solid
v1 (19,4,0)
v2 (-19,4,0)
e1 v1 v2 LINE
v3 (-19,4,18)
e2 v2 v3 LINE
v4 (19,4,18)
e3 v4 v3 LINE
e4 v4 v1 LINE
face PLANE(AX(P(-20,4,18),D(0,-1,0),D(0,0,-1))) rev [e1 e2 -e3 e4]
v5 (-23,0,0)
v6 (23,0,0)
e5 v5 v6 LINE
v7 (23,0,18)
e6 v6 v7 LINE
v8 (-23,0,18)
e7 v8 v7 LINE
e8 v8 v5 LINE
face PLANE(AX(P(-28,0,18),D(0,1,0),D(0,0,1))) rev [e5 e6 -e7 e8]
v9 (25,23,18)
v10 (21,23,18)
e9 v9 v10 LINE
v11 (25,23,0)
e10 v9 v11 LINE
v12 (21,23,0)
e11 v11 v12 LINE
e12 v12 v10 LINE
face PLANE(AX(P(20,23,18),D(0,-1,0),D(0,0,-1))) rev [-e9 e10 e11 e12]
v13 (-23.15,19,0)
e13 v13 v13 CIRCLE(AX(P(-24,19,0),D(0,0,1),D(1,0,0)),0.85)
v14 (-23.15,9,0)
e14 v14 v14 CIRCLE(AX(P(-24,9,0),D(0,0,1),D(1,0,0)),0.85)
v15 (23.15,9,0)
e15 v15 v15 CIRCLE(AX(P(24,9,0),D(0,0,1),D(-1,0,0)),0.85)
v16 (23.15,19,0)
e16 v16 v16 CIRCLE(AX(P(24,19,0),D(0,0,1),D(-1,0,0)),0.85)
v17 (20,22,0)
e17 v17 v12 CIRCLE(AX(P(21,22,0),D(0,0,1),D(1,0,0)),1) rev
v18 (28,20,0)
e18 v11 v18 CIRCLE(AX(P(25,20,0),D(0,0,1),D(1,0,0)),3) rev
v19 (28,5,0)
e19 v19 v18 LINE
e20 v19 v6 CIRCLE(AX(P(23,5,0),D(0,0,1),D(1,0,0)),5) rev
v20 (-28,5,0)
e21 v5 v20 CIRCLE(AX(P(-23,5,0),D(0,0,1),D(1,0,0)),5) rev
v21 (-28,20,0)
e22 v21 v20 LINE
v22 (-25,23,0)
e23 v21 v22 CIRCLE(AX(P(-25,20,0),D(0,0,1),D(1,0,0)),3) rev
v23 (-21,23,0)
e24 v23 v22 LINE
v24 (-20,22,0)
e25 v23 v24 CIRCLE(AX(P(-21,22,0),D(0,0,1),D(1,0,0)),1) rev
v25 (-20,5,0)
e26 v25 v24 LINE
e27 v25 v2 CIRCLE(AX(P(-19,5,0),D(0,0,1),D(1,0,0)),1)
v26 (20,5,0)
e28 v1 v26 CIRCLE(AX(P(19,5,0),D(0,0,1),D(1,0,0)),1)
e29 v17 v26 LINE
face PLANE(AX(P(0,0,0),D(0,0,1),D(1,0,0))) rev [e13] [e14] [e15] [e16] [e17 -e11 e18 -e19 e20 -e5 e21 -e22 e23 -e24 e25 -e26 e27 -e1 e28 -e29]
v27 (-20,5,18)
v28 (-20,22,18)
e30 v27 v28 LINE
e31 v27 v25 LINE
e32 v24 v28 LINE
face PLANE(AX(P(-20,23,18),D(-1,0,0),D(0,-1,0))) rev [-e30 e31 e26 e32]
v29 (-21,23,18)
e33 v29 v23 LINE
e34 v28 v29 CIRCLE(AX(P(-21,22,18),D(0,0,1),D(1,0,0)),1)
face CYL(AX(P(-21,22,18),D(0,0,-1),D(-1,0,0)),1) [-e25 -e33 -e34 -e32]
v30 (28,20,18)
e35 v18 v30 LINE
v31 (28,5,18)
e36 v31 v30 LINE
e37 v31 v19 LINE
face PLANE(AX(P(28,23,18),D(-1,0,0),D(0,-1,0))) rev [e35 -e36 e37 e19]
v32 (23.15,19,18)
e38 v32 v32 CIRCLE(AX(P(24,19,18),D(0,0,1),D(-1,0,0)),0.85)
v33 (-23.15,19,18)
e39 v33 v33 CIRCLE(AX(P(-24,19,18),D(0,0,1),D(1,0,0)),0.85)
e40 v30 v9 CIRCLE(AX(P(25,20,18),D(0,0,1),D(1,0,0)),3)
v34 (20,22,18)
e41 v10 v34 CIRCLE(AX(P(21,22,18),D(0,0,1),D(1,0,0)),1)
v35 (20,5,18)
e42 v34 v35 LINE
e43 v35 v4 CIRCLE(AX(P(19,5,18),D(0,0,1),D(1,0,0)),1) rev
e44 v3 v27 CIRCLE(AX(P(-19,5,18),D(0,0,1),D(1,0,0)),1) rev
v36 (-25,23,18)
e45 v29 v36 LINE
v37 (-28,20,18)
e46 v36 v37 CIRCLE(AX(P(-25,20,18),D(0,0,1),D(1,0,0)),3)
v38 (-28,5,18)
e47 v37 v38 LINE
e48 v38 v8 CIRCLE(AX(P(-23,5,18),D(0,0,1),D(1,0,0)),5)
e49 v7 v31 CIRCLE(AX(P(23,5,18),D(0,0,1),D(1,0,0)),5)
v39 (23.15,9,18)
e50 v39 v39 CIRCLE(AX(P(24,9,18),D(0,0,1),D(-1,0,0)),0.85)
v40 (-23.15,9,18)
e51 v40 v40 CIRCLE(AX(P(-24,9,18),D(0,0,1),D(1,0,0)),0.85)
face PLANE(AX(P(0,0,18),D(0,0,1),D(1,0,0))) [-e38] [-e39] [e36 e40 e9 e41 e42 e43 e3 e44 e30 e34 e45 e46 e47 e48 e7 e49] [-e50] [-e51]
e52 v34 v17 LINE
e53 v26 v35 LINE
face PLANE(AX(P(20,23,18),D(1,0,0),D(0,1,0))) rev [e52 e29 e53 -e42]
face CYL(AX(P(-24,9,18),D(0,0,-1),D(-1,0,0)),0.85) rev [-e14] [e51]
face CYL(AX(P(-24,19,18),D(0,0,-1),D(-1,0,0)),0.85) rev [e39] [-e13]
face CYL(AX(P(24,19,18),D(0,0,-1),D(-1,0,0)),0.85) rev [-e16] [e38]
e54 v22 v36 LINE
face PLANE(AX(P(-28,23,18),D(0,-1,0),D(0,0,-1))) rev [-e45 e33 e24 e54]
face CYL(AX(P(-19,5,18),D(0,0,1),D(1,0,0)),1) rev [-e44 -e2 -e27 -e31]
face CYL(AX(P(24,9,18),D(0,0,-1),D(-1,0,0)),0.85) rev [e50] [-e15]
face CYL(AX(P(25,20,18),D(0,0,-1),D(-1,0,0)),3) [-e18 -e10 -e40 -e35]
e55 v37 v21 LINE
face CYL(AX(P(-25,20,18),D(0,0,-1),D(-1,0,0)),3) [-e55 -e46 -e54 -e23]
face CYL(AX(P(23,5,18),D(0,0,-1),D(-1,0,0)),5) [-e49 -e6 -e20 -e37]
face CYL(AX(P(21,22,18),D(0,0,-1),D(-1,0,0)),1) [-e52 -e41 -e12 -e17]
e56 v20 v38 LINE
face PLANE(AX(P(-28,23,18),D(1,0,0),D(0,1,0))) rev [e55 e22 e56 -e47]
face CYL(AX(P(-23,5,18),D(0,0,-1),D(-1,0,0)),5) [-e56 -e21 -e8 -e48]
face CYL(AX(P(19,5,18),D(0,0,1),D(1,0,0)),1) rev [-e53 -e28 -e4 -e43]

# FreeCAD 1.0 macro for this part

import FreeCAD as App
import Part
import Sketcher
from FreeCAD import Vector
Q = App.Units.Quantity


def edges_at(feature, points):
    """Names of the edges that pass closest to the given points."""
    edges = feature.Shape.Edges
    near = lambda p: min(range(len(edges)), key=lambda i: edges[i].distToShape(Part.Vertex(*p))[0])
    return sorted({f"Edge{near(p) + 1}" for p in points})

doc = App.newDocument("Part")
body = doc.addObject("PartDesign::Body", "Body")

sketch1 = body.newObject("Sketcher::SketchObject", "Sketch")
sketch1.AttachmentSupport = (doc.getObject("XY_Plane"), [""])
sketch1.MapMode = "FlatFace"
sketch1.addGeometry([
    Part.LineSegment(Vector(28, 23, 0), Vector(20, 23, 0)),
    Part.LineSegment(Vector(20, 23, 0), Vector(20, 4, 0)),
    Part.LineSegment(Vector(20, 4, 0), Vector(-20, 4, 0)),
    Part.LineSegment(Vector(-20, 4, 0), Vector(-20, 23, 0)),
    Part.LineSegment(Vector(-20, 23, 0), Vector(-28, 23, 0)),
    Part.LineSegment(Vector(-28, 23, 0), Vector(-28, 0, 0)),
    Part.LineSegment(Vector(-28, 0, 0), Vector(28, 0, 0)),
    Part.LineSegment(Vector(28, 0, 0), Vector(28, 23, 0)),
    Part.Circle(Vector(24, 9, 0), Vector(0, 0, 1), 0.8),
    Part.Circle(Vector(-24, 9, 0), Vector(0, 0, 1), 0.8),
    Part.Circle(Vector(24, 19, 0), Vector(0, 0, 1), 0.8),
    Part.Circle(Vector(-24, 19, 0), Vector(0, 0, 1), 0.8),
], False)
sketch1.addConstraint([
    Sketcher.Constraint("Coincident", 0, 2, 1, 1),
    Sketcher.Constraint("Coincident", 1, 2, 2, 1),
    Sketcher.Constraint("Coincident", 2, 2, 3, 1),
    Sketcher.Constraint("Coincident", 3, 2, 4, 1),
    Sketcher.Constraint("Coincident", 4, 2, 5, 1),
    Sketcher.Constraint("Coincident", 5, 2, 6, 1),
    Sketcher.Constraint("Coincident", 6, 2, 7, 1),
    Sketcher.Constraint("Coincident", 7, 2, 0, 1),
    Sketcher.Constraint("Horizontal", 0),
    Sketcher.Constraint("Vertical", 1),
    Sketcher.Constraint("Horizontal", 2),
    Sketcher.Constraint("Vertical", 3),
    Sketcher.Constraint("Horizontal", 4),
    Sketcher.Constraint("Vertical", 5),
    Sketcher.Constraint("Horizontal", 6),
    Sketcher.Constraint("Vertical", 7),
    Sketcher.Constraint("Equal", 8, 9),
    Sketcher.Constraint("Equal", 9, 10),
    Sketcher.Constraint("Equal", 10, 11),
    Sketcher.Constraint("Symmetric", 5, 2, 6, 2, -1, 1),
    Sketcher.Constraint("Symmetric", 8, 3, 9, 3, -2),
    Sketcher.Constraint("Symmetric", 10, 3, 11, 3, -2),
    Sketcher.Constraint("Symmetric", 0, 2, 3, 2, -2),
    Sketcher.Constraint("Vertical", 8, 3, 10, 3),
    Sketcher.Constraint("Diameter", 8, Q("1.7 mm")),
    Sketcher.Constraint("DistanceX", 0, 2, 0, 1, Q("8 mm")),
    Sketcher.Constraint("DistanceX", 2, 2, 2, 1, Q("40 mm")),
    Sketcher.Constraint("DistanceY", 1, 2, 1, 1, Q("19 mm")),
    Sketcher.Constraint("DistanceY", 5, 2, 5, 1, Q("23 mm")),
    Sketcher.Constraint("DistanceX", -1, 1, 8, 3, Q("24 mm")),
    Sketcher.Constraint("DistanceY", -1, 1, 8, 3, Q("9 mm")),
    Sketcher.Constraint("DistanceY", -1, 1, 10, 3, Q("19 mm")),
])
pad1 = body.newObject("PartDesign::Pad", "Pad")
pad1.Profile = sketch1
pad1.Length = 18
doc.recompute()

fillet = body.newObject("PartDesign::Fillet", "Fillet")
fillet.Base = (pad1, edges_at(pad1, [
    (-20, 23, 9),
    (-20, 4, 9),
    (20, 4, 9),
    (20, 23, 9),
]))
fillet.Radius = 1
doc.recompute()

fillet2 = body.newObject("PartDesign::Fillet", "Fillet001")
fillet2.Base = (fillet, edges_at(fillet, [(-28, 23, 9), (28, 23, 9)]))
fillet2.Radius = 3
doc.recompute()

fillet3 = body.newObject("PartDesign::Fillet", "Fillet002")
fillet3.Base = (fillet2, edges_at(fillet2, [(28, 0, 9), (-28, 0, 9)]))
fillet3.Radius = 5

doc.recompute()
